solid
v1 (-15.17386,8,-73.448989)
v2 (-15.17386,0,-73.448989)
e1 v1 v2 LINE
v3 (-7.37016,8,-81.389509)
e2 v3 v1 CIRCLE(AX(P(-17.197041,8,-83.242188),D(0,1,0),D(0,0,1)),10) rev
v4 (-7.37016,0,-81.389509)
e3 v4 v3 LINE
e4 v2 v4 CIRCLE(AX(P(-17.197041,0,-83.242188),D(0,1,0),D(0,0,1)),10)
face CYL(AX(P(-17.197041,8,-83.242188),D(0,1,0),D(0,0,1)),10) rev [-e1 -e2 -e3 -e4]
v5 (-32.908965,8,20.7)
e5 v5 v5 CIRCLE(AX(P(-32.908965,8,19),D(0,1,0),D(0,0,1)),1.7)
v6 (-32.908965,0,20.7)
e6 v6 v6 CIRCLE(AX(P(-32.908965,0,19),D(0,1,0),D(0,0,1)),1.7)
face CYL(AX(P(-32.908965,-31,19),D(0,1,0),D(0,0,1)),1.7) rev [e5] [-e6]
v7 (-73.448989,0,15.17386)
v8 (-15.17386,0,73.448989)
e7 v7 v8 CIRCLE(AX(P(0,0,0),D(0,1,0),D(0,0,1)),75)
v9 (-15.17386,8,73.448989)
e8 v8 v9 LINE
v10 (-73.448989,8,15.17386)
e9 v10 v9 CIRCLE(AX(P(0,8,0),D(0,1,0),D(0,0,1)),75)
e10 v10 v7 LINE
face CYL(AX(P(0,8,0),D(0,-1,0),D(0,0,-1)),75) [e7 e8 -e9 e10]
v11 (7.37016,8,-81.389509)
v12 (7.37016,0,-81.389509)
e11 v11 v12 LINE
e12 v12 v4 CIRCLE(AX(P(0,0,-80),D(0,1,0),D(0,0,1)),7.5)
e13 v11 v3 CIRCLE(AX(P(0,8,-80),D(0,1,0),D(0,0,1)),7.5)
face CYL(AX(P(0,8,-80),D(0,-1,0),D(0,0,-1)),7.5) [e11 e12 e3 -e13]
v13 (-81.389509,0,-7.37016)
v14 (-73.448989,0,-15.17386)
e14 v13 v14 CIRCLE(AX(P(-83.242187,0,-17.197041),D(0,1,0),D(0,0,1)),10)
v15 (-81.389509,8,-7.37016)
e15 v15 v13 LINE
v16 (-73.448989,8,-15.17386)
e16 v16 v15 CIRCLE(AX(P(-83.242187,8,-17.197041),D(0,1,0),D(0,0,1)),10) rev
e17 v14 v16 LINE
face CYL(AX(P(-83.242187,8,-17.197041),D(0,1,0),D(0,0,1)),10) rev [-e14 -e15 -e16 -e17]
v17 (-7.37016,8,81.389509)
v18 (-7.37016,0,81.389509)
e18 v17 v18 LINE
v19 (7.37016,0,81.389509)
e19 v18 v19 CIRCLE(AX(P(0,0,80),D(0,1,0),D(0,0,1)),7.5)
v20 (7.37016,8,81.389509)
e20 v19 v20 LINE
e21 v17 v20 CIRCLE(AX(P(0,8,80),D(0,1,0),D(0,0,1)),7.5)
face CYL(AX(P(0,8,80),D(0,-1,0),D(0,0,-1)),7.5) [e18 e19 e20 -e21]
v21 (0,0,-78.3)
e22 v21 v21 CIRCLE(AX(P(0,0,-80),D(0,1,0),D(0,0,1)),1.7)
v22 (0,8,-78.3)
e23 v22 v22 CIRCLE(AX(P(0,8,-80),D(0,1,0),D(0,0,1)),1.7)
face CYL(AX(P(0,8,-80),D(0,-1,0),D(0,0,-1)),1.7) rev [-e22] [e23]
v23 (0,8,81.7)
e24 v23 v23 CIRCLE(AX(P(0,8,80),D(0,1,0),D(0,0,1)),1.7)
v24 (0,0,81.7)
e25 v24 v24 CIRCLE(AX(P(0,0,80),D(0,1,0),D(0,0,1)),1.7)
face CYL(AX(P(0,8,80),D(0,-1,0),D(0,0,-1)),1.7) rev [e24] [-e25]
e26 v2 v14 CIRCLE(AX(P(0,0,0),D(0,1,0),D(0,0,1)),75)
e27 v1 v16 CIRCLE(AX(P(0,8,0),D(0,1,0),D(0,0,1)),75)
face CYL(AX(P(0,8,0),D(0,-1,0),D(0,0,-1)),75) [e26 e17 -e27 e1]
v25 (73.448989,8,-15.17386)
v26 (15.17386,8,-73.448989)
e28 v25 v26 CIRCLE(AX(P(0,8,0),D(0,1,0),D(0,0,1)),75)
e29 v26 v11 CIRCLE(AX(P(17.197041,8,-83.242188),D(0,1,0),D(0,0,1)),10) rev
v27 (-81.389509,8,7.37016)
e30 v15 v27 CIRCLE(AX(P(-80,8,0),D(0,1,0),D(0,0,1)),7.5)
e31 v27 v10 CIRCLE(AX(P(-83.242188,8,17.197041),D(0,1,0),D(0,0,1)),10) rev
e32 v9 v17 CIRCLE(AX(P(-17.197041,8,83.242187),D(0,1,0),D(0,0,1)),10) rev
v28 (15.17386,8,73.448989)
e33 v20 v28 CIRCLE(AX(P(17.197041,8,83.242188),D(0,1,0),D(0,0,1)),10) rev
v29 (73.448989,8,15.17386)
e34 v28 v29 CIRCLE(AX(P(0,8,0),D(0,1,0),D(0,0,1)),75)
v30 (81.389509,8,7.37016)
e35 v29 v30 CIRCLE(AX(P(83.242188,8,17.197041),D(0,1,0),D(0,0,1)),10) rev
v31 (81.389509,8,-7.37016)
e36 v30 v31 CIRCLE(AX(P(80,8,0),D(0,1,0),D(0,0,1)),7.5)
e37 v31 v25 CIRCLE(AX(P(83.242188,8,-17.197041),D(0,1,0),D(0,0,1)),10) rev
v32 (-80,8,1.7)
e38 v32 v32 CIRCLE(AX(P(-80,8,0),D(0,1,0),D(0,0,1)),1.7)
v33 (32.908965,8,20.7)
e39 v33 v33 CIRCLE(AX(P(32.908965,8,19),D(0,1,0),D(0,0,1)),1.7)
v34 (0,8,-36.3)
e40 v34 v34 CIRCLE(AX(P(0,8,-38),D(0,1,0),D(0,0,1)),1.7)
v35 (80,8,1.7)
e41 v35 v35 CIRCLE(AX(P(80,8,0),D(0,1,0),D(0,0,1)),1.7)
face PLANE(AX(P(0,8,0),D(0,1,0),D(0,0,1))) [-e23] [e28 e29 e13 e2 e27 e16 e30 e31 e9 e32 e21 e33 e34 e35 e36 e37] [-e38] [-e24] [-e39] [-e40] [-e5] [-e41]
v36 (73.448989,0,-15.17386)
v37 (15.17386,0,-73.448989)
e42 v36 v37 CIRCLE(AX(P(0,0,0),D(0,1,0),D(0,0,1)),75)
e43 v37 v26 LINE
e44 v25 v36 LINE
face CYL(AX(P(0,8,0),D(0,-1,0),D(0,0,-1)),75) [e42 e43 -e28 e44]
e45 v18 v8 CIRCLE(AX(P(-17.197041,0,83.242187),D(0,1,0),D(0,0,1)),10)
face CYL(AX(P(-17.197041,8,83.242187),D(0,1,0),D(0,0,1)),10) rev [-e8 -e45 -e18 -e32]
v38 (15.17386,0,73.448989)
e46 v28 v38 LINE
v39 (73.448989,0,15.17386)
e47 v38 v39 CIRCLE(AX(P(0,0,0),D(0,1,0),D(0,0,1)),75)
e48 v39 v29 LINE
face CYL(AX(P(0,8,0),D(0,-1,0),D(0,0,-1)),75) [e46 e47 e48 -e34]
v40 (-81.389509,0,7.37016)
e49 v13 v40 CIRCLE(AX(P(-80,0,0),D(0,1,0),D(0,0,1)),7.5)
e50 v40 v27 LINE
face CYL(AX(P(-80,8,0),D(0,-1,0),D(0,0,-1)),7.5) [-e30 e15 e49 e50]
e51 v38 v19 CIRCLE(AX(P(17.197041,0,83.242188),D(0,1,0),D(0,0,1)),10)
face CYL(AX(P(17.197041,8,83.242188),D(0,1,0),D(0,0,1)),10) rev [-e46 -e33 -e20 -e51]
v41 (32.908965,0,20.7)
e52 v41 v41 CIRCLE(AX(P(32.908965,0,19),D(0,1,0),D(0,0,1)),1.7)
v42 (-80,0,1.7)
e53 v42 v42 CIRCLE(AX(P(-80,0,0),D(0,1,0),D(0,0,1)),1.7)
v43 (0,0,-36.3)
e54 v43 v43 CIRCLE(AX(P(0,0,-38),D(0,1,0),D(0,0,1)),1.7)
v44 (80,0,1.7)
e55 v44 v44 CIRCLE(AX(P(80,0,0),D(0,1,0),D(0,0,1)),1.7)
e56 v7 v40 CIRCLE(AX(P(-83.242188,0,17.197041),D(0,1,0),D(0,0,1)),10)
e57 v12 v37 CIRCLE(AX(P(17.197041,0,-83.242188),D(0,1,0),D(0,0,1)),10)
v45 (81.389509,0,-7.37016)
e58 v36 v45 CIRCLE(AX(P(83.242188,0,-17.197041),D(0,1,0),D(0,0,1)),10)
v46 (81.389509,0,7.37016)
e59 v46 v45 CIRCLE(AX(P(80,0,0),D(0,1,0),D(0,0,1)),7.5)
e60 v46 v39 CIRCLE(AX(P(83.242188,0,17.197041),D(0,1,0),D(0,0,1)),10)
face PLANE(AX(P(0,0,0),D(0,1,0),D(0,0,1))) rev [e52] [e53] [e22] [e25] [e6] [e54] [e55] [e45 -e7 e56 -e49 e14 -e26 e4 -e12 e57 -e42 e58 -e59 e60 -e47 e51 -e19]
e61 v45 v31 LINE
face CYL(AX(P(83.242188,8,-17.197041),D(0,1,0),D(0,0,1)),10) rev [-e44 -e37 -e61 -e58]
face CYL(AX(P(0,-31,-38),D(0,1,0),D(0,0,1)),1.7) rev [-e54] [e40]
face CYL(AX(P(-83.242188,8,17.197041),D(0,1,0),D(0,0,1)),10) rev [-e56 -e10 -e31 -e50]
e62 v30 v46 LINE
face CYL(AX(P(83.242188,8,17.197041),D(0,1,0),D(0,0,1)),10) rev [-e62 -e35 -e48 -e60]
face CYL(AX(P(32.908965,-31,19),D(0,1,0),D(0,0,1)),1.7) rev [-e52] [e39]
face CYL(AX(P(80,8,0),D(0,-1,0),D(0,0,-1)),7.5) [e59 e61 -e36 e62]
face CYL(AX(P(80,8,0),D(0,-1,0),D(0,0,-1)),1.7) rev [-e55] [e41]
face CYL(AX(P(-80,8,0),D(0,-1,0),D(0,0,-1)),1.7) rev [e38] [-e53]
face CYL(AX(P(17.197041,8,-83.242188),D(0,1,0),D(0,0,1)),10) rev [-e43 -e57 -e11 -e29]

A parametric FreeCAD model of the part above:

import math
import FreeCAD as App
import Part
import Sketcher
from FreeCAD import Vector
Q = App.Units.Quantity


def edges_at(feature, points):
    """Names of the edges that pass closest to the given points."""
    edges = feature.Shape.Edges
    near = lambda p: min(range(len(edges)), key=lambda i: edges[i].distToShape(Part.Vertex(*p))[0])
    return sorted({f"Edge{near(p) + 1}" for p in points})

doc = App.newDocument("Part")
body = doc.addObject("PartDesign::Body", "Body")

# Sketch on XZ plane
sketch1 = body.newObject("Sketcher::SketchObject", "Sketch")
sketch1.AttachmentSupport = (doc.getObject("XZ_Plane"), [""])
sketch1.MapMode = "FlatFace"
sketch1.addGeometry([
    Part.ArcOfCircle(Part.Circle(Vector(0, 0, 0), Vector(0, 0, 1), 75), math.radians(-175.864135), math.radians(-94.135865)),  # 0
    Part.ArcOfCircle(Part.Circle(Vector(-80, 0, 0), Vector(0, 0, 1), 7.5), math.radians(46.155119), math.radians(313.844881)),  # 1
    Part.ArcOfCircle(Part.Circle(Vector(0, 0, 0), Vector(0, 0, 1), 75), math.radians(94.135865), math.radians(175.864135)),  # 2
    Part.ArcOfCircle(Part.Circle(Vector(0, 80, 0), Vector(0, 0, 1), 7.5), math.radians(-43.844881), math.radians(223.844881)),  # 3
    Part.ArcOfCircle(Part.Circle(Vector(0, 0, 0), Vector(0, 0, 1), 75), math.radians(4.135865), math.radians(85.864135)),  # 4
    Part.ArcOfCircle(Part.Circle(Vector(80, 0, 0), Vector(0, 0, 1), 7.5), math.radians(-133.844881), math.radians(133.844881)),  # 5
    Part.ArcOfCircle(Part.Circle(Vector(0, 0, 0), Vector(0, 0, 1), 75), math.radians(-85.864135), math.radians(-4.135865)),  # 6
    Part.ArcOfCircle(Part.Circle(Vector(0, -80, 0), Vector(0, 0, 1), 7.5), math.radians(136.155119), math.radians(403.844881)),  # 7
    Part.Circle(Vector(0, 80, 0), Vector(0, 0, 1), 1.7),  # 8
    Part.Circle(Vector(-80, 0, 0), Vector(0, 0, 1), 1.7),  # 9
    Part.Circle(Vector(80, 0, 0), Vector(0, 0, 1), 1.7),  # 10
    Part.Circle(Vector(0, -80, 0), Vector(0, 0, 1), 1.7),  # 11
], False)
sketch1.addConstraint([
    Sketcher.Constraint("Coincident", 0, 1, 1, 2),
    Sketcher.Constraint("Coincident", 1, 1, 2, 2),
    Sketcher.Constraint("Coincident", 2, 1, 3, 2),
    Sketcher.Constraint("Coincident", 3, 1, 4, 2),
    Sketcher.Constraint("Coincident", 4, 1, 5, 2),
    Sketcher.Constraint("Coincident", 5, 1, 6, 2),
    Sketcher.Constraint("Coincident", 6, 1, 7, 2),
    Sketcher.Constraint("Coincident", 7, 1, 0, 2),
    Sketcher.Constraint("Coincident", 0, 3, -1, 1),
    Sketcher.Constraint("Coincident", 2, 3, -1, 1),
    Sketcher.Constraint("Coincident", 4, 3, -1, 1),
    Sketcher.Constraint("Coincident", 6, 3, -1, 1),
    Sketcher.Constraint("Coincident", 8, 3, 3, 3),
    Sketcher.Constraint("Coincident", 9, 3, 1, 3),
    Sketcher.Constraint("Coincident", 10, 3, 5, 3),
    Sketcher.Constraint("Coincident", 11, 3, 7, 3),
    Sketcher.Constraint("Equal", 0, 2),
    Sketcher.Constraint("Equal", 1, 3),
    Sketcher.Constraint("Equal", 2, 4),
    Sketcher.Constraint("Equal", 3, 5),
    Sketcher.Constraint("Equal", 4, 6),
    Sketcher.Constraint("Equal", 5, 7),
    Sketcher.Constraint("Equal", 8, 9),
    Sketcher.Constraint("Equal", 9, 10),
    Sketcher.Constraint("Equal", 10, 11),
    Sketcher.Constraint("Symmetric", 1, 3, 5, 3, -1, 1),
    Sketcher.Constraint("Symmetric", 3, 3, 7, 3, -1, 1),
    Sketcher.Constraint("PointOnObject", 1, 3, -1),
    Sketcher.Constraint("PointOnObject", 3, 3, -2),
    Sketcher.Constraint("Radius", 0, Q("75 mm")),
    Sketcher.Constraint("Diameter", 8, Q("3.4 mm")),
    Sketcher.Constraint("Radius", 1, Q("7.5 mm")),
    Sketcher.Constraint("DistanceX", 1, 3, -1, 1, Q("80 mm")),
    Sketcher.Constraint("DistanceY", -1, 1, 3, 3, Q("80 mm")),
])
pad1 = body.newObject("PartDesign::Pad", "Pad")
pad1.Profile = sketch1
pad1.Length = 8
pad1.Reversed = True
doc.recompute()

fillet = body.newObject("PartDesign::Fillet", "Fillet")
fillet.Base = (pad1, edges_at(pad1, [
    (74.805, 4, -5.409),
    (74.805, 4, 5.409),
    (5.409, 4, 74.805),
    (-5.409, 4, 74.805),
    (-74.805, 4, 5.409),
    (-74.805, 4, -5.409),
    (-5.409, 4, -74.805),
    (5.409, 4, -74.805),
]))
fillet.Radius = 10

# Sketch on XZ plane
sketch2 = body.newObject("Sketcher::SketchObject", "Sketch001")
sketch2.AttachmentSupport = (doc.getObject("XZ_Plane"), [""])
sketch2.MapMode = "FlatFace"
sketch2.AttachmentOffset = App.Placement(Vector(0, 0, -8), App.Rotation())
sketch2.addGeometry([
    Part.Circle(Vector(0, -38, 0), Vector(0, 0, 1), 1.7),
    Part.Circle(Vector(32.908965, 19, 0), Vector(0, 0, 1), 1.7),
    Part.Circle(Vector(-32.908965, 19, 0), Vector(0, 0, 1), 1.7),
], False)
sketch2.addConstraint([
    Sketcher.Constraint("Equal", 0, 1),
    Sketcher.Constraint("Equal", 1, 2),
    Sketcher.Constraint("Symmetric", 1, 3, 2, 3, -2),
    Sketcher.Constraint("PointOnObject", 0, 3, -2),
    Sketcher.Constraint("Diameter", 0, Q("3.4 mm")),
    Sketcher.Constraint("DistanceY", 0, 3, -1, 1, Q("38 mm")),
    Sketcher.Constraint("DistanceY", -1, 1, 1, 3, Q("19 mm")),
    Sketcher.Constraint("DistanceX", 2, 3, 1, 3, Q("65.817931 mm")),
])
pocket1 = body.newObject("PartDesign::Pocket", "Pocket")
pocket1.Profile = sketch2
pocket1.Length = 39
pocket1.Reversed = True

doc.recompute()
